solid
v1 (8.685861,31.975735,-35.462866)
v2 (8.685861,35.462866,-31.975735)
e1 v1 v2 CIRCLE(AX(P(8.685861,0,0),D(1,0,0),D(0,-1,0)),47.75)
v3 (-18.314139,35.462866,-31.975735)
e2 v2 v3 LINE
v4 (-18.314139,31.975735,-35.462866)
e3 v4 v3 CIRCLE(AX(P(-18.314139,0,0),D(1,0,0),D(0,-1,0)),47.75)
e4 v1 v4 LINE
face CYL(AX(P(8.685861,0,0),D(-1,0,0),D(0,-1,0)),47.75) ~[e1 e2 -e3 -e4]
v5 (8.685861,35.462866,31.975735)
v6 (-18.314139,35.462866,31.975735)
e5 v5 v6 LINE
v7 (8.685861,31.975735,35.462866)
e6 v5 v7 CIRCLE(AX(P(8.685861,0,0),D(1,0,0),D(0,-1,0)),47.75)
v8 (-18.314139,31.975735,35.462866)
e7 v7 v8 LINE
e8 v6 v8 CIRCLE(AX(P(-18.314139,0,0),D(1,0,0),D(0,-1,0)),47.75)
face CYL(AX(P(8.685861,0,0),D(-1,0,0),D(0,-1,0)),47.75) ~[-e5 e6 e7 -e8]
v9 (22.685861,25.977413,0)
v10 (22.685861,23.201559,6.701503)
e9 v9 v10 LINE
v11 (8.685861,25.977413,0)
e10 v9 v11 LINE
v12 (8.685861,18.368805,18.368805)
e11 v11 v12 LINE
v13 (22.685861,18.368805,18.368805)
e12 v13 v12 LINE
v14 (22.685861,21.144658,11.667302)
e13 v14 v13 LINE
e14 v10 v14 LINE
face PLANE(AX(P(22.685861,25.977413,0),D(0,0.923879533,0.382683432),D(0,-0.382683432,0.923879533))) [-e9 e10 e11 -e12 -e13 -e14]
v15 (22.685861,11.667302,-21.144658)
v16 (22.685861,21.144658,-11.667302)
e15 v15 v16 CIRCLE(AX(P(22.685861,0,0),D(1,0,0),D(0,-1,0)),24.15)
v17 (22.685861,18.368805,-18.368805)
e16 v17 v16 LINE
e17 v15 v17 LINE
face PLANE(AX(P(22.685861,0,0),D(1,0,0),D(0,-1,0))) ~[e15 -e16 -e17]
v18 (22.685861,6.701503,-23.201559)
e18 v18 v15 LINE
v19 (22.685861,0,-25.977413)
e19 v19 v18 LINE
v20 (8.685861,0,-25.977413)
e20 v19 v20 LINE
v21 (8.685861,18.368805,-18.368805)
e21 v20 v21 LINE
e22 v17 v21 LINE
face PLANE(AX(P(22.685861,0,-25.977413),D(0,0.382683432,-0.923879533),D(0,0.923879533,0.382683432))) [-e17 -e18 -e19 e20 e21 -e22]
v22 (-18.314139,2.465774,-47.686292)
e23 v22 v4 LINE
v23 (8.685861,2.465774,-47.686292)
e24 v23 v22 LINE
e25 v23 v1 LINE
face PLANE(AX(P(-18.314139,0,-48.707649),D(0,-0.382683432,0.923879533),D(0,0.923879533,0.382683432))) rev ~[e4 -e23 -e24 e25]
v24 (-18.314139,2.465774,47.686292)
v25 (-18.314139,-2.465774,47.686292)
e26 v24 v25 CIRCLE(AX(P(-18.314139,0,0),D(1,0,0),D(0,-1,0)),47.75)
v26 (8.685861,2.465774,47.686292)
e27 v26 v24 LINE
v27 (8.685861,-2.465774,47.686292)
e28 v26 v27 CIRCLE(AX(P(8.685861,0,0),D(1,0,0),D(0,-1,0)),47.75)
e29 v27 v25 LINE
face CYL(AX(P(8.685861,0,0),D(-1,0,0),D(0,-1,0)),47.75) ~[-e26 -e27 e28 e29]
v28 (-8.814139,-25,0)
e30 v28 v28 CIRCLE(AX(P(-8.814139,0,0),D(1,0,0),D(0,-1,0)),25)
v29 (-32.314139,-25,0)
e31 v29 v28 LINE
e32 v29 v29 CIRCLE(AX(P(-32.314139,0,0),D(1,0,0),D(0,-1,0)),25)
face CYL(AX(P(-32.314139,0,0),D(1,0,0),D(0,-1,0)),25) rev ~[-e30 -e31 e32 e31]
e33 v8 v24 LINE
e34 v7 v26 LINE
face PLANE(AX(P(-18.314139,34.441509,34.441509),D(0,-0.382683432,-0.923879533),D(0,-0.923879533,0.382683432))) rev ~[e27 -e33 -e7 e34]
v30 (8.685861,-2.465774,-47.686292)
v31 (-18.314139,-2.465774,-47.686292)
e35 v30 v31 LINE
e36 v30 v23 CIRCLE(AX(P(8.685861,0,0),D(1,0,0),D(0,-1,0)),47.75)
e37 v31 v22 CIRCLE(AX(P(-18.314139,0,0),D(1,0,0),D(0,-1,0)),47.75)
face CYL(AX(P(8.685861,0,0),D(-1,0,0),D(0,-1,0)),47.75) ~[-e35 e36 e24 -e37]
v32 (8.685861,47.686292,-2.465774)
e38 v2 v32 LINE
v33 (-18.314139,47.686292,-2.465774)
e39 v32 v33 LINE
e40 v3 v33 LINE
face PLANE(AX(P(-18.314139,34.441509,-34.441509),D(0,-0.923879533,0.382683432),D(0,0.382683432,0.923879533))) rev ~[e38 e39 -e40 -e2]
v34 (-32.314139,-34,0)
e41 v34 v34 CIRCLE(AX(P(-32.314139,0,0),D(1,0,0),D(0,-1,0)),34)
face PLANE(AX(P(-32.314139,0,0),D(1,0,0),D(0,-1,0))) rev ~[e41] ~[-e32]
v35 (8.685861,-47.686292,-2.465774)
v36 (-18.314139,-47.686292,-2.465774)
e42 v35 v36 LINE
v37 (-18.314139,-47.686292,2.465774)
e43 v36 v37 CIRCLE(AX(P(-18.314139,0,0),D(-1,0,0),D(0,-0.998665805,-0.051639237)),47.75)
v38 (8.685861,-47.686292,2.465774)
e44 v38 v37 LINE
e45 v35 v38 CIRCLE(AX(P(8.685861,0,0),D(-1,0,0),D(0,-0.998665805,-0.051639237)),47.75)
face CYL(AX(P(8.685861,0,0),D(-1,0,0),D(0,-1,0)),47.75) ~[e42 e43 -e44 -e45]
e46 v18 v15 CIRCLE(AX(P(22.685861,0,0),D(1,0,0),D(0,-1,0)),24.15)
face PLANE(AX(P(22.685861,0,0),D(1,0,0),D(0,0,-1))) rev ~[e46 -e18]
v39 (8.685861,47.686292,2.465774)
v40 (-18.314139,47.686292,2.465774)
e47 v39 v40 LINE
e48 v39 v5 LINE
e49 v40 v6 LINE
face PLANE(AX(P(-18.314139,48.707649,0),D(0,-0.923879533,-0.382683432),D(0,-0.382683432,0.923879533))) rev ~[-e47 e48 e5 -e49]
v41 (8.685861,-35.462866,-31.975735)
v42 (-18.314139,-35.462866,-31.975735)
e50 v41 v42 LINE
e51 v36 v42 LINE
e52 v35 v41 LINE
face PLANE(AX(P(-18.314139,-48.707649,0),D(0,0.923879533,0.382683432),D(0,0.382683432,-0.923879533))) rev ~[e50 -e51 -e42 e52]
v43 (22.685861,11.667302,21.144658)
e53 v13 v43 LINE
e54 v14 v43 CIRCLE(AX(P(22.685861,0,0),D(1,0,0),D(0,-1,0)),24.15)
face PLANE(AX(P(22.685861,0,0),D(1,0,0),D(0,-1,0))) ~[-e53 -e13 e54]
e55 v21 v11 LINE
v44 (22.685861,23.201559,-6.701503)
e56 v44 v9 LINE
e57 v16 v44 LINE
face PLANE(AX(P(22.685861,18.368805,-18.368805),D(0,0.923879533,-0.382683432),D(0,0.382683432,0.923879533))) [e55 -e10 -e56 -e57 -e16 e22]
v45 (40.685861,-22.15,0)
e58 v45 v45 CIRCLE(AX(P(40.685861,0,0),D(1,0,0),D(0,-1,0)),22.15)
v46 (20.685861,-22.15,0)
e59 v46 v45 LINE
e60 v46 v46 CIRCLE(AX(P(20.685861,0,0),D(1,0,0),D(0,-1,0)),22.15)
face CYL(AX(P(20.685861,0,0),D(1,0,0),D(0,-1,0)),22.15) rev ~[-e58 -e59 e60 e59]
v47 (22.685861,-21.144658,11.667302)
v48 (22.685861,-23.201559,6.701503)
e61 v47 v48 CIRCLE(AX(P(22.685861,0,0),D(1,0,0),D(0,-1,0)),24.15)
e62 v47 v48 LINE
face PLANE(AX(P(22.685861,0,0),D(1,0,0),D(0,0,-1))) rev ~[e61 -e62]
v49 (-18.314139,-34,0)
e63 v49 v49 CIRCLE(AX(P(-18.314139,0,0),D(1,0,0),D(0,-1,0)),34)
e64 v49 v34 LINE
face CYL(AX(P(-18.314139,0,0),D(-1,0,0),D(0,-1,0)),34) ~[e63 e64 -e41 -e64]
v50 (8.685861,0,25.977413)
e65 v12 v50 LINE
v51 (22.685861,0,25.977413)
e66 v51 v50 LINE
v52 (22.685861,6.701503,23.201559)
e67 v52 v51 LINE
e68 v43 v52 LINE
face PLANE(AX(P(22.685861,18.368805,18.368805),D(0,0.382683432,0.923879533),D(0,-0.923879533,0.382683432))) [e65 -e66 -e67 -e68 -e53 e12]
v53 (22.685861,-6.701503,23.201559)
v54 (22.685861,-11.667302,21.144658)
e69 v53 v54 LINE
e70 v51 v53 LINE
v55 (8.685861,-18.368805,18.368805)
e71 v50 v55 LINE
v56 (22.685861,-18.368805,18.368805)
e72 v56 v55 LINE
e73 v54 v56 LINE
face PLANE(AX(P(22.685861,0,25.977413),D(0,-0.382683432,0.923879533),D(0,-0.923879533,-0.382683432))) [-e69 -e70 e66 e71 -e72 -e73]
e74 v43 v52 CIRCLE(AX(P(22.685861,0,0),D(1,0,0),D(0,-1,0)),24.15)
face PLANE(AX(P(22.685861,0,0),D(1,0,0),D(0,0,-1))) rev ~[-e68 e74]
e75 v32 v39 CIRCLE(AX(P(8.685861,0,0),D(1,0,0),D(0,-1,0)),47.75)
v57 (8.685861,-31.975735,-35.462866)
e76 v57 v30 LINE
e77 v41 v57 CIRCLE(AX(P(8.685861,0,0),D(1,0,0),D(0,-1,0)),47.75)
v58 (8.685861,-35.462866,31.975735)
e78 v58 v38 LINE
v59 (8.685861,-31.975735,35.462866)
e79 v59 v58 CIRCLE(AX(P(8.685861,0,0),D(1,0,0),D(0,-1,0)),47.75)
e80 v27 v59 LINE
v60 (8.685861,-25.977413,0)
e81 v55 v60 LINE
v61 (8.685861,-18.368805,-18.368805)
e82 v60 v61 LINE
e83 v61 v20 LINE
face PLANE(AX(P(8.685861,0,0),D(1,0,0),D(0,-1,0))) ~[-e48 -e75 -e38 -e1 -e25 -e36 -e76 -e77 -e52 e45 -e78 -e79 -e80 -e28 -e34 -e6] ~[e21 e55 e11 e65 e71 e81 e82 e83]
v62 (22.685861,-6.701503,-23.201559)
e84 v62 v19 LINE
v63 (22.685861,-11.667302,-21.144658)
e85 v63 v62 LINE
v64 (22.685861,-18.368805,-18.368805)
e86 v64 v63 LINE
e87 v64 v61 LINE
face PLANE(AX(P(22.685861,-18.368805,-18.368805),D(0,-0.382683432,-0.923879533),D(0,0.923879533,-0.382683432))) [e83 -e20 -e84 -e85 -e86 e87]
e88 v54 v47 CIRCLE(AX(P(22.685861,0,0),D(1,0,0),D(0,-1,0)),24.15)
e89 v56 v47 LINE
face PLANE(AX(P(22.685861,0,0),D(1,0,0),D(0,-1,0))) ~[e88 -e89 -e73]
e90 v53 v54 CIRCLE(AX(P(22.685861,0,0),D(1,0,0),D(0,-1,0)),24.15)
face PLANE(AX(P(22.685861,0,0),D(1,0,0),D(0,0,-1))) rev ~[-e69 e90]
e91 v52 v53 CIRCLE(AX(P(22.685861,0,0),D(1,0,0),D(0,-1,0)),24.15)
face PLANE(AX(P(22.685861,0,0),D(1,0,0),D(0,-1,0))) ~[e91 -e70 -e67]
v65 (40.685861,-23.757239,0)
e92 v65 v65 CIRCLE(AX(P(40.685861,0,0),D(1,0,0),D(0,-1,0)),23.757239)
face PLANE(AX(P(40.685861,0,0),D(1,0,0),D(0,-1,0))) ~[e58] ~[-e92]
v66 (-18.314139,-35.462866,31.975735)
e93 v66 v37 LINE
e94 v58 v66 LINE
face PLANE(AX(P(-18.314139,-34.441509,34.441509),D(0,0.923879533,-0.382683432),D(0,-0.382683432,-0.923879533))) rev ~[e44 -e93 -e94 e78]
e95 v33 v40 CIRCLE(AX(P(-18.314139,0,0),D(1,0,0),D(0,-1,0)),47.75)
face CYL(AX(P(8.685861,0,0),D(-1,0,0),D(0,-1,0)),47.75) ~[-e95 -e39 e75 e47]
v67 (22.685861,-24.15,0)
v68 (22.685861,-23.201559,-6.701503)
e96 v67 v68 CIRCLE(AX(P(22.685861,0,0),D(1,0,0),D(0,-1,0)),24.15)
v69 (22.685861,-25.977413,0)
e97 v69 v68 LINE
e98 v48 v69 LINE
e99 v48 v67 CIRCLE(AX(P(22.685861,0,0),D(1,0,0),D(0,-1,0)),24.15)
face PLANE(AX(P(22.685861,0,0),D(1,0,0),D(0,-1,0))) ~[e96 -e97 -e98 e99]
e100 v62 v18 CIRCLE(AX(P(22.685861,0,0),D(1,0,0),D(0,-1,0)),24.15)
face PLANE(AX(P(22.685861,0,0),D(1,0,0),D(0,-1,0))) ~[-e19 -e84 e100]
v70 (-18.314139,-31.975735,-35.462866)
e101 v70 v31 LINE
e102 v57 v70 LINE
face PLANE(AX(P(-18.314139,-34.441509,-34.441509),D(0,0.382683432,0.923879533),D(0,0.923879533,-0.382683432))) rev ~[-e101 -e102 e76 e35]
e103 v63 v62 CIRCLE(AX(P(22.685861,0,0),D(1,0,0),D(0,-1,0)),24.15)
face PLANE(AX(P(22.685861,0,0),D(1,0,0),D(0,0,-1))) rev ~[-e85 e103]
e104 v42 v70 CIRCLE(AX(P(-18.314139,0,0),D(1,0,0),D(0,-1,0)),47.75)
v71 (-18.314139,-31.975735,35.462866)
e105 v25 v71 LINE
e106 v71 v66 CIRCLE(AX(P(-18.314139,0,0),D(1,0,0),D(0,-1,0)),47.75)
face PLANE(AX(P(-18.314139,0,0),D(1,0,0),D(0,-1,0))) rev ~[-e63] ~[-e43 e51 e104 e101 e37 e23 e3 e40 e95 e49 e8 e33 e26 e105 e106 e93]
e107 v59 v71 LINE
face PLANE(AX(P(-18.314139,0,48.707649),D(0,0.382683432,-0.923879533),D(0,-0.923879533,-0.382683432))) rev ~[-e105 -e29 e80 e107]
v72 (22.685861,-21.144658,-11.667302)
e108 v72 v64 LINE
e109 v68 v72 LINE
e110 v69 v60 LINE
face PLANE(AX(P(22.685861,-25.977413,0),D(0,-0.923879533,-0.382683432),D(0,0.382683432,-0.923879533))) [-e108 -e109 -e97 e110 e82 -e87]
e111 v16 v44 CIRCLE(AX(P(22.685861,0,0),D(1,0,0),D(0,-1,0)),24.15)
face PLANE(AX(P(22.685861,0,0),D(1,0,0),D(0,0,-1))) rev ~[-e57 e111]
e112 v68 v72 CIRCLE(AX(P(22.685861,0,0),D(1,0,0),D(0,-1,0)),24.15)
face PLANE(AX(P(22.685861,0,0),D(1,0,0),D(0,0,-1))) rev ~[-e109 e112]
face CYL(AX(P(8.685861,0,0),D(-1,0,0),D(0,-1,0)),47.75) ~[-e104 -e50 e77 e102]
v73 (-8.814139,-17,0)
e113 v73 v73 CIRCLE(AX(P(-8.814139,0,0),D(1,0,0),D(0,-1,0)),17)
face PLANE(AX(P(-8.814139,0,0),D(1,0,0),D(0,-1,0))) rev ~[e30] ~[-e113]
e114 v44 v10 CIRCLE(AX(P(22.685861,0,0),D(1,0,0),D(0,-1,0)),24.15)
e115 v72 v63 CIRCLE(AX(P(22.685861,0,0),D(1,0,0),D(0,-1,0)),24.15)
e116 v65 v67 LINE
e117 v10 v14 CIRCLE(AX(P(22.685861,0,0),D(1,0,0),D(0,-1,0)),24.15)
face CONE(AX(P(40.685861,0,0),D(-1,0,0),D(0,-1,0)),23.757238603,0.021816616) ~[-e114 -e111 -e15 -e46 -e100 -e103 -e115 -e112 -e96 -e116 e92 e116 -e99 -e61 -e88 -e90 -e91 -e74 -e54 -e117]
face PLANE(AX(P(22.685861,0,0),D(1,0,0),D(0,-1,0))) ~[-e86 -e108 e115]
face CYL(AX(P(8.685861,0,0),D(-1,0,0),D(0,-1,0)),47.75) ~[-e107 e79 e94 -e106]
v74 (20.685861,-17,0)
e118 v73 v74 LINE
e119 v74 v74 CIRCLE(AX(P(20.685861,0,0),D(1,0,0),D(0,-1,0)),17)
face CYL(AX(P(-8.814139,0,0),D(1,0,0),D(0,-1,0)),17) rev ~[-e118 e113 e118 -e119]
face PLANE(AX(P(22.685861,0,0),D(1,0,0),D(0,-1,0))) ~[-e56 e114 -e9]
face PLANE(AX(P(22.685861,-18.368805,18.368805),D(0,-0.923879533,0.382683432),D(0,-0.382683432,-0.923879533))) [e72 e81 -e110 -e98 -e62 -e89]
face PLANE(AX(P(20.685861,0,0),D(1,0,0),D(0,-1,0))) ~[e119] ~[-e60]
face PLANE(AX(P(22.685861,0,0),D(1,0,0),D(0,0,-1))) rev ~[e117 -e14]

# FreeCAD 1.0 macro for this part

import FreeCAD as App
import Part
import Sketcher

V = App.Vector
Q = App.Units.Quantity

doc = App.newDocument("Part")
params = doc.addObject("Spreadsheet::Sheet", "Params")
for row, (alias, value) in enumerate([
    ("sketch1_width", "14 mm"),
    ("sketch1_width2", "27 mm"),
    ("sketch1_width3", "20 mm"),
    ("sketch1_height", "9 mm"),
    ("sketch1_height2", "8 mm"),
    ("revolution_angle", "360 deg"),
    ("pocket1_length", "27 mm"),
    ("pocket2_length", "14 mm"),
], start=1):
    params.set(f"A{row}", alias)
    params.set(f"B{row}", "=" + value)
    params.setAlias(f"B{row}", alias)

body = doc.addObject("PartDesign::Body", "Body")

# Sketch on XY plane
sketch1 = doc.addObject("Sketcher::SketchObject", "Sketch")
body.addObject(sketch1)
sketch1.AttachmentSupport = (doc.XY_Plane, [""])
sketch1.MapMode = "FlatFace"
sketch1.addGeometry([
    Part.LineSegment(V(-8.8, -25, 0), V(-32.3, -25, 0)),  # 0
    Part.LineSegment(V(-32.3, -25, 0), V(-32.3, -34, 0)),  # 1
    Part.LineSegment(V(-32.3, -34, 0), V(-18.3, -34, 0)),  # 2
    Part.LineSegment(V(-18.3, -34, 0), V(-18.3, -47.8, 0)),  # 3
    Part.LineSegment(V(-18.3, -47.8, 0), V(8.7, -47.8, 0)),  # 4
    Part.LineSegment(V(8.7, -47.8, 0), V(8.7, -34.7, 0)),  # 5
    Part.LineSegment(V(8.7, -34.7, 0), V(22.7, -34.7, 0)),  # 6
    Part.LineSegment(V(22.7, -34.7, 0), V(22.7, -24.1, 0)),  # 7
    Part.LineSegment(V(22.7, -24.1, 0), V(40.7, -23.8, 0)),  # 8
    Part.LineSegment(V(40.7, -23.8, 0), V(40.7, -22.1, 0)),  # 9
    Part.LineSegment(V(40.7, -22.1, 0), V(20.7, -22.1, 0)),  # 10
    Part.LineSegment(V(20.7, -22.1, 0), V(20.7, -17, 0)),  # 11
    Part.LineSegment(V(20.7, -17, 0), V(-8.8, -17, 0)),  # 12
    Part.LineSegment(V(-8.8, -17, 0), V(-8.8, -25, 0)),  # 13
], False)
sketch1.addConstraint([
    Sketcher.Constraint("Coincident", 0, 2, 1, 1),
    Sketcher.Constraint("Coincident", 1, 2, 2, 1),
    Sketcher.Constraint("Coincident", 2, 2, 3, 1),
    Sketcher.Constraint("Coincident", 3, 2, 4, 1),
    Sketcher.Constraint("Coincident", 4, 2, 5, 1),
    Sketcher.Constraint("Coincident", 5, 2, 6, 1),
    Sketcher.Constraint("Coincident", 6, 2, 7, 1),
    Sketcher.Constraint("Coincident", 7, 2, 8, 1),
    Sketcher.Constraint("Coincident", 8, 2, 9, 1),
    Sketcher.Constraint("Coincident", 9, 2, 10, 1),
    Sketcher.Constraint("Coincident", 10, 2, 11, 1),
    Sketcher.Constraint("Coincident", 11, 2, 12, 1),
    Sketcher.Constraint("Coincident", 12, 2, 13, 1),
    Sketcher.Constraint("Coincident", 13, 2, 0, 1),
    Sketcher.Constraint("Horizontal", 0),
    Sketcher.Constraint("Vertical", 1),
    Sketcher.Constraint("Horizontal", 2),
    Sketcher.Constraint("Vertical", 3),
    Sketcher.Constraint("Horizontal", 4),
    Sketcher.Constraint("Vertical", 5),
    Sketcher.Constraint("Horizontal", 6),
    Sketcher.Constraint("Vertical", 7),
    Sketcher.Constraint("Vertical", 9),
    Sketcher.Constraint("Horizontal", 10),
    Sketcher.Constraint("Vertical", 11),
    Sketcher.Constraint("Horizontal", 12),
    Sketcher.Constraint("Vertical", 13),
    Sketcher.Constraint("Equal", 2, 6),
    Sketcher.Constraint("DistanceX", 2, 1, 2, 2, 14.0),
    Sketcher.Constraint("DistanceX", 4, 1, 4, 2, 27.0),
    Sketcher.Constraint("DistanceX", 10, 2, 10, 1, 20.0),
    Sketcher.Constraint("DistanceY", 1, 2, 1, 1, 9.0),
    Sketcher.Constraint("DistanceY", 13, 2, 13, 1, 8.0),
    Sketcher.Constraint("DistanceX", 0, 2, 0, 1, 23.5),
    Sketcher.Constraint("DistanceX", 12, 2, 12, 1, 29.5),
    Sketcher.Constraint("DistanceY", 0, 2, -1, 1, 25.0),
    Sketcher.Constraint("DistanceY", 7, 2, 9, 2, 2.0),
    Sketcher.Constraint("DistanceY", 3, 2, 3, 1, 13.75),
    Sketcher.Constraint("DistanceY", 11, 1, 11, 2, 5.15),
    Sketcher.Constraint("Angle", 8, Q("1.25 deg")),
    Sketcher.Constraint("DistanceY", 5, 1, 5, 2, 13.009515),
    Sketcher.Constraint("DistanceX", 0, 2, -1, 1, 32.314139),
])
sketch1.setExpression("Constraints[28]", "Params.sketch1_width")
sketch1.setExpression("Constraints[29]", "Params.sketch1_width2")
sketch1.setExpression("Constraints[30]", "Params.sketch1_width3")
sketch1.setExpression("Constraints[31]", "Params.sketch1_height")
sketch1.setExpression("Constraints[32]", "Params.sketch1_height2")
revolution = doc.addObject("PartDesign::Revolution", "Revolution")
body.addObject(revolution)
revolution.Profile = sketch1
revolution.ReferenceAxis = (sketch1, ["H_Axis"])
revolution.setExpression("Angle", "Params.revolution_angle")

# Sketch on YZ plane
sketch2 = doc.addObject("Sketcher::SketchObject", "Sketch001")
body.addObject(sketch2)
sketch2.AttachmentSupport = (doc.YZ_Plane, [""])
sketch2.MapMode = "FlatFace"
sketch2.AttachmentOffset = App.Placement(V(0, 0, -18.314139), App.Rotation())
sketch2.addGeometry([
    Part.Circle(V(0, 0, 0), V(0, 0, 1), 61),  # 0
    Part.LineSegment(V(34, 34, 0), V(49, 0, 0)),  # 1
    Part.LineSegment(V(49, 0, 0), V(34, -34, 0)),  # 2
    Part.LineSegment(V(34, -34, 0), V(0, -49, 0)),  # 3
    Part.LineSegment(V(0, -49, 0), V(-34, -34, 0)),  # 4
    Part.LineSegment(V(-34, -34, 0), V(-49, 0, 0)),  # 5
    Part.LineSegment(V(-49, 0, 0), V(-34, 34, 0)),  # 6
    Part.LineSegment(V(-34, 34, 0), V(0, 49, 0)),  # 7
    Part.LineSegment(V(0, 49, 0), V(34, 34, 0)),  # 8
], False)
sketch2.addConstraint([
    Sketcher.Constraint("Coincident", 1, 2, 2, 1),
    Sketcher.Constraint("Coincident", 2, 2, 3, 1),
    Sketcher.Constraint("Coincident", 3, 2, 4, 1),
    Sketcher.Constraint("Coincident", 4, 2, 5, 1),
    Sketcher.Constraint("Coincident", 5, 2, 6, 1),
    Sketcher.Constraint("Coincident", 6, 2, 7, 1),
    Sketcher.Constraint("Coincident", 7, 2, 8, 1),
    Sketcher.Constraint("Coincident", 8, 2, 1, 1),
    Sketcher.Constraint("Coincident", 0, 3, -1, 1),
    Sketcher.Constraint("Symmetric", 1, 2, 5, 2, -1, 1),
    Sketcher.Constraint("Symmetric", 2, 2, 6, 2, -1, 1),
    Sketcher.Constraint("Symmetric", 3, 2, 7, 2, -1, 1),
    Sketcher.Constraint("Symmetric", 4, 2, 8, 2, -1, 1),
    Sketcher.Constraint("Symmetric", 2, 2, 4, 2, -2),
    Sketcher.Constraint("PointOnObject", 1, 2, -1),
    Sketcher.Constraint("PointOnObject", 3, 2, -2),
    Sketcher.Constraint("Perpendicular", 1, 3),
    Sketcher.Constraint("Equal", 2, 3),
    Sketcher.Constraint("Angle", 1, Q("-67.5 deg")),
    Sketcher.Constraint("Diameter", 0, 122.830929),
    Sketcher.Constraint("DistanceX", 5, 2, 1, 2, 97.415298),
])
pocket1 = doc.addObject("PartDesign::Pocket", "Pocket")
body.addObject(pocket1)
pocket1.Profile = sketch2
pocket1.setExpression("Length", "Params.pocket1_length")
pocket1.Reversed = True

# Sketch on YZ plane
sketch3 = doc.addObject("Sketcher::SketchObject", "Sketch002")
body.addObject(sketch3)
sketch3.AttachmentSupport = (doc.YZ_Plane, [""])
sketch3.MapMode = "FlatFace"
sketch3.AttachmentOffset = App.Placement(V(0, 0, 22.685861), App.Rotation())
sketch3.addGeometry([
    Part.Circle(V(0, 0, 0), V(0, 0, 1), 40),  # 0
    Part.LineSegment(V(18, 18, 0), V(26, 0, 0)),  # 1
    Part.LineSegment(V(26, 0, 0), V(18, -18, 0)),  # 2
    Part.LineSegment(V(18, -18, 0), V(0, -26, 0)),  # 3
    Part.LineSegment(V(0, -26, 0), V(-18, -18, 0)),  # 4
    Part.LineSegment(V(-18, -18, 0), V(-26, 0, 0)),  # 5
    Part.LineSegment(V(-26, 0, 0), V(-18, 18, 0)),  # 6
    Part.LineSegment(V(-18, 18, 0), V(0, 26, 0)),  # 7
    Part.LineSegment(V(0, 26, 0), V(18, 18, 0)),  # 8
], False)
sketch3.addConstraint([
    Sketcher.Constraint("Coincident", 1, 2, 2, 1),
    Sketcher.Constraint("Coincident", 2, 2, 3, 1),
    Sketcher.Constraint("Coincident", 3, 2, 4, 1),
    Sketcher.Constraint("Coincident", 4, 2, 5, 1),
    Sketcher.Constraint("Coincident", 5, 2, 6, 1),
    Sketcher.Constraint("Coincident", 6, 2, 7, 1),
    Sketcher.Constraint("Coincident", 7, 2, 8, 1),
    Sketcher.Constraint("Coincident", 8, 2, 1, 1),
    Sketcher.Constraint("Coincident", 0, 3, -1, 1),
    Sketcher.Constraint("Symmetric", 1, 2, 5, 2, -1, 1),
    Sketcher.Constraint("Symmetric", 2, 2, 6, 2, -1, 1),
    Sketcher.Constraint("Symmetric", 3, 2, 7, 2, -1, 1),
    Sketcher.Constraint("Symmetric", 4, 2, 8, 2, -1, 1),
    Sketcher.Constraint("Symmetric", 2, 2, 4, 2, -2),
    Sketcher.Constraint("PointOnObject", 1, 2, -1),
    Sketcher.Constraint("PointOnObject", 3, 2, -2),
    Sketcher.Constraint("Perpendicular", 1, 3),
    Sketcher.Constraint("Equal", 2, 3),
    Sketcher.Constraint("Angle", 1, Q("-67.5 deg")),
    Sketcher.Constraint("Diameter", 0, 80.244172),
    Sketcher.Constraint("Distance", 1, 19.882251),
])
pocket2 = doc.addObject("PartDesign::Pocket", "Pocket001")
body.addObject(pocket2)
pocket2.Profile = sketch3
pocket2.setExpression("Length", "Params.pocket2_length")

doc.recompute()
